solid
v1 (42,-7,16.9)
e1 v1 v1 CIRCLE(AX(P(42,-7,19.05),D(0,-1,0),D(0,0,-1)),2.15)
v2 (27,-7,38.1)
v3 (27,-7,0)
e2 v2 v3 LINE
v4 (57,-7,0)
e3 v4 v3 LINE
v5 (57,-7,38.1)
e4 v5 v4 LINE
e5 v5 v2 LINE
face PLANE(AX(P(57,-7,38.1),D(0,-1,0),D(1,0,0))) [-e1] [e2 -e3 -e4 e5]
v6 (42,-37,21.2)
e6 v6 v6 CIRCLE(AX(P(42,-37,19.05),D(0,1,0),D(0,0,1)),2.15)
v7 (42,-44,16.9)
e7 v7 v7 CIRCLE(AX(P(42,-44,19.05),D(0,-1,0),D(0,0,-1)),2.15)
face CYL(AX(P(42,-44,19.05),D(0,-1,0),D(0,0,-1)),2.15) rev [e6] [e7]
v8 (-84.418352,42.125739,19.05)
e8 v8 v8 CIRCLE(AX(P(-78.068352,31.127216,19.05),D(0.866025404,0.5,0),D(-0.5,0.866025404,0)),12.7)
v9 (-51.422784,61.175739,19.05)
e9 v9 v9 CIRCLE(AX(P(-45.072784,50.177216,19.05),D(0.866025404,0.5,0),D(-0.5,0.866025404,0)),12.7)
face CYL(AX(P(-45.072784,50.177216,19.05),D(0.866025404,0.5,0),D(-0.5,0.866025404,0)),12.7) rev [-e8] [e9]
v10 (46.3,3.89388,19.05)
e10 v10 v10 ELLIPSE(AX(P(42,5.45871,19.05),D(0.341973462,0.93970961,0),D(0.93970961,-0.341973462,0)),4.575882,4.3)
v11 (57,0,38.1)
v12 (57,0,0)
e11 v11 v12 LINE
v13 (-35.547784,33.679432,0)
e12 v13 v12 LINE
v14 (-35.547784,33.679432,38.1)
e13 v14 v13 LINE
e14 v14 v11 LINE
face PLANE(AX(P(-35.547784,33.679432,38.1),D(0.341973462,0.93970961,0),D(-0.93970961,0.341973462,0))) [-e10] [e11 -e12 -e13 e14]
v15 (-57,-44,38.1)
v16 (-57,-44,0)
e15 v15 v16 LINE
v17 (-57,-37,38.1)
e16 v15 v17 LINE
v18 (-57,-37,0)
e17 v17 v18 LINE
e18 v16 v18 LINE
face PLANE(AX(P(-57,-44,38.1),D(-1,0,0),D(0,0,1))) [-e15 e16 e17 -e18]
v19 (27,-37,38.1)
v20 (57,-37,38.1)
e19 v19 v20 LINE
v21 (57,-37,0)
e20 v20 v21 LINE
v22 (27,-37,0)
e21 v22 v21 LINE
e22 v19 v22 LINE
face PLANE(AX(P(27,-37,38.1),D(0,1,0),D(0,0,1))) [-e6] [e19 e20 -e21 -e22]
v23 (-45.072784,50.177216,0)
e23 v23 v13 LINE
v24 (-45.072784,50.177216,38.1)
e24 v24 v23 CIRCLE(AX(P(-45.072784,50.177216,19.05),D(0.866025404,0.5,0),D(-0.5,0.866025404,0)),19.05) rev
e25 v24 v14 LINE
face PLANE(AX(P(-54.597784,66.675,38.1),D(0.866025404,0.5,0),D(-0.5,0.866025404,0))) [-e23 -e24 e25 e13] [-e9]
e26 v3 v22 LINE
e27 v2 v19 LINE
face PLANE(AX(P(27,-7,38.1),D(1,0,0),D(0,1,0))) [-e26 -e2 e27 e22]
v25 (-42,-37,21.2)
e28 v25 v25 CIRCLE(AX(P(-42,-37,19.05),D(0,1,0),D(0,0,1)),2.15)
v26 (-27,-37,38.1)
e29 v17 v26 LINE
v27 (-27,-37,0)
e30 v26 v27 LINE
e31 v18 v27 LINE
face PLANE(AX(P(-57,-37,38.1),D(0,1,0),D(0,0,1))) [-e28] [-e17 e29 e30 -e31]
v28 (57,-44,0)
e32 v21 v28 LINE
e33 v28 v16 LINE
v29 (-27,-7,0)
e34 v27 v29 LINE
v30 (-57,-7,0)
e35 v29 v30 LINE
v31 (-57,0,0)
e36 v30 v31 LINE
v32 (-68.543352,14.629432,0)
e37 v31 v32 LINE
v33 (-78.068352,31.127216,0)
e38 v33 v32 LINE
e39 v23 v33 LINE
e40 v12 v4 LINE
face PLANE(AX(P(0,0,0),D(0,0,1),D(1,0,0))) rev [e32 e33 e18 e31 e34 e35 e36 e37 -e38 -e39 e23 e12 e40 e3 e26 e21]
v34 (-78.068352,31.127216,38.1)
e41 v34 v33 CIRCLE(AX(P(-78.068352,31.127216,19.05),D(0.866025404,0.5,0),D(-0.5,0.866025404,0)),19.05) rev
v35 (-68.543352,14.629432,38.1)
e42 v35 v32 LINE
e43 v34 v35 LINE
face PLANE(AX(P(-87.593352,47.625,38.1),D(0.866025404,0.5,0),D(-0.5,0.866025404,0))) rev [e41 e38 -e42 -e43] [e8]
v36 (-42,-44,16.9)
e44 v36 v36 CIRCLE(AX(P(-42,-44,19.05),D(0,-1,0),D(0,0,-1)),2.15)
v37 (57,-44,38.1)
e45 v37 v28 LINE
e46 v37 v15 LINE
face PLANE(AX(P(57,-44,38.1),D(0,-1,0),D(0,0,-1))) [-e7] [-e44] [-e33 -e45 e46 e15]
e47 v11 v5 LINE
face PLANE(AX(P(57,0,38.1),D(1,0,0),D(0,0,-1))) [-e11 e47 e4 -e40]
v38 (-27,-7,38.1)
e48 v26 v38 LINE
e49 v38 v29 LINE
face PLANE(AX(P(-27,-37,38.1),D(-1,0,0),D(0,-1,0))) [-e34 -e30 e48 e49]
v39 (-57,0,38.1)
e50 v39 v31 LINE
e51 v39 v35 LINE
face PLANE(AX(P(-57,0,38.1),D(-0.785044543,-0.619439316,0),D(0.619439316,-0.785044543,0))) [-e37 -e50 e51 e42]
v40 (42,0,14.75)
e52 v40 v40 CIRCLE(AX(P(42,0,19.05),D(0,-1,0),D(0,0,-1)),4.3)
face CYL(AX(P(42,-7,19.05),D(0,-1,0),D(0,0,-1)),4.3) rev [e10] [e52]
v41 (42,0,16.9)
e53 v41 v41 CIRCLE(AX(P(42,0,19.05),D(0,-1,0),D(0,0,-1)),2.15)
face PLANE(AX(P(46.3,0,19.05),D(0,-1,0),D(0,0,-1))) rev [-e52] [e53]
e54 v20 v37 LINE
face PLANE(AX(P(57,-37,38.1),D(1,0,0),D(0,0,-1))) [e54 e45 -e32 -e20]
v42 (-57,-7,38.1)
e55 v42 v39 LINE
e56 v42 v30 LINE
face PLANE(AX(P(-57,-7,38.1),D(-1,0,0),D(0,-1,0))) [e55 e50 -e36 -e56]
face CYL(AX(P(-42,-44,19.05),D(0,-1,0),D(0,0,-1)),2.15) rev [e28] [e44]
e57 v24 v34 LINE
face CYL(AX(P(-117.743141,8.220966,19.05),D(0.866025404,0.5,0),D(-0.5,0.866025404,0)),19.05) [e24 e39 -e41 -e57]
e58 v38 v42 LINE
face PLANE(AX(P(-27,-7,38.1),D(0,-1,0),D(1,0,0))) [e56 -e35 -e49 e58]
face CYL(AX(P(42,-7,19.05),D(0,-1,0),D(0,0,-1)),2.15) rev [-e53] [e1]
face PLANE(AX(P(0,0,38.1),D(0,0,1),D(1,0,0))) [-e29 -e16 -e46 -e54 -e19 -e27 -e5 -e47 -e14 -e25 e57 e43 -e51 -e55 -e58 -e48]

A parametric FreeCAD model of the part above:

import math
import FreeCAD as App
import Part
import Sketcher

V = App.Vector
Q = App.Units.Quantity


def add_polygon(sketch, points):
    """Adds a closed chain of lines whose ends are joined by coincident constraints."""
    first, n = sketch.GeometryCount, len(points)
    for a, b in zip(points, points[1:] + points[:1]):
        sketch.addGeometry(Part.LineSegment(App.Vector(*a, 0), App.Vector(*b, 0)), False)
    for i in range(n):
        sketch.addConstraint(Sketcher.Constraint("Coincident", first + i, 2, first + (i + 1) % n, 1))

doc = App.newDocument("Part")
body = doc.addObject("PartDesign::Body", "Body")

# Sketch on XY plane
sketch1 = body.newObject("Sketcher::SketchObject", "Sketch")
sketch1.AttachmentSupport = (doc.getObject("XY_Plane"), [""])
sketch1.MapMode = "FlatFace"
add_polygon(sketch1, [(-55, 67), (-88, 48), (-69, 15), (-57, 0), (-57, -7), (-27, -7), (-27, -37), (-57, -37), (-57, -44), (57, -44), (57, -37), (27, -37), (27, -7), (57, -7), (57, 0), (-36, 34)])  # lines 0-15
sketch1.addConstraint([
    Sketcher.Constraint("Vertical", 3),
    Sketcher.Constraint("Horizontal", 4),
    Sketcher.Constraint("Vertical", 5),
    Sketcher.Constraint("Horizontal", 6),
    Sketcher.Constraint("Vertical", 7),
    Sketcher.Constraint("Horizontal", 8),
    Sketcher.Constraint("Vertical", 9),
    Sketcher.Constraint("Horizontal", 10),
    Sketcher.Constraint("Vertical", 11),
    Sketcher.Constraint("Horizontal", 12),
    Sketcher.Constraint("Vertical", 13),
    Sketcher.Constraint("Symmetric", 2, 2, 13, 2, -1, 1),
    Sketcher.Constraint("Symmetric", 6, 2, 9, 2, -2),
    Sketcher.Constraint("Symmetric", 4, 2, 11, 2, -2),
    Sketcher.Constraint("PointOnObject", 2, 2, -1),
    Sketcher.Constraint("Perpendicular", 0, 1),
    Sketcher.Constraint("Parallel", 1, 15),
    Sketcher.Constraint("Vertical", 3, 2, 6, 2),
    Sketcher.Constraint("Equal", 12, 5),
    Sketcher.Constraint("Equal", 3, 7),
    Sketcher.Constraint("Equal", 0, 1),
    Sketcher.Constraint("Equal", 1, 15),
    Sketcher.Constraint("DistanceX", 4, 1, 4, 2, Q("30 mm")),
    Sketcher.Constraint("DistanceX", 8, 1, 8, 2, Q("114 mm")),
    Sketcher.Constraint("DistanceY", 3, 2, 3, 1, Q("7 mm")),
    Sketcher.Constraint("Angle", 0, Q("-150 deg")),
    Sketcher.Constraint("Distance", 0, Q("38.1 mm")),
    Sketcher.Constraint("DistanceY", -1, 1, 0, 2, Q("47.625 mm")),
    Sketcher.Constraint("Distance", 2, Q("18.635162 mm")),
])
pad1 = body.newObject("PartDesign::Pad", "Pad")
pad1.Profile = sketch1
pad1.Length = 38.1

# Sketch on an angled plane
sketch2 = body.newObject("Sketcher::SketchObject", "Sketch001")
sketch2.Placement = App.Placement(V(-12.077216, -6.972784, 0), App.Rotation(V(0, 0, -1), V(-0.5, 0.866025404, 0), V(0.866025404, 0.5, 0), "ZXY"))
sketch2.addGeometry([
    Part.ArcOfCircle(Part.Circle(V(-19, 66, 0), V(0, 0, 1), 19), math.radians(90), math.radians(180)),  # 0
    Part.LineSegment(V(-19, 85, 0), V(-38, 85, 0)),  # 1
    Part.LineSegment(V(-38, 85, 0), V(-38, 66, 0)),  # 2
    Part.LineSegment(V(0, 66, 0), V(0, 85, 0)),  # 3
    Part.LineSegment(V(0, 85, 0), V(-19, 85, 0)),  # 4
    Part.ArcOfCircle(Part.Circle(V(-19, 66, 0), V(0, 0, 1), 19), math.radians(0), math.radians(90)),  # 5
], False)
sketch2.addConstraint([
    Sketcher.Constraint("Tangent", 0, 1, 1, 1),
    Sketcher.Constraint("Coincident", 1, 2, 2, 1),
    Sketcher.Constraint("Tangent", 2, 2, 0, 2),
    Sketcher.Constraint("Coincident", 3, 2, 4, 1),
    Sketcher.Constraint("Tangent", 4, 2, 5, 2),
    Sketcher.Constraint("Tangent", 5, 1, 3, 1),
    Sketcher.Constraint("Horizontal", 1),
    Sketcher.Constraint("Vertical", 2),
    Sketcher.Constraint("Vertical", 3),
    Sketcher.Constraint("Horizontal", 4),
    Sketcher.Constraint("Coincident", 5, 3, 0, 3),
    Sketcher.Constraint("Equal", 0, 5),
    Sketcher.Constraint("PointOnObject", 3, 2, -2),
    Sketcher.Constraint("Radius", 0, Q("19.05 mm")),
    Sketcher.Constraint("DistanceY", -1, 1, 0, 3, Q("65.991136 mm")),
])
pocket1 = body.newObject("PartDesign::Pocket", "Pocket")
pocket1.Profile = sketch2
pocket1.Type = "ThroughAll"

# Sketch on an angled plane
sketch3 = body.newObject("Sketcher::SketchObject", "Sketch002")
sketch3.Placement = App.Placement(V(-12.077216, -6.972784, 0), App.Rotation(V(0, 0, -1), V(-0.5, 0.866025404, 0), V(0.866025404, 0.5, 0), "ZXY"))
sketch3.addGeometry(Part.Circle(V(-19, 66, 0), V(0, 0, 1), 13), False)
sketch3.addConstraint([
    Sketcher.Constraint("Diameter", 0, Q("25.4 mm")),
    Sketcher.Constraint("DistanceX", 0, 3, -1, 1, Q("19.05 mm")),
    Sketcher.Constraint("DistanceY", -1, 1, 0, 3, Q("65.991136 mm")),
])
doc.recompute()
hole = body.newObject("PartDesign::Hole", "Hole")
hole.Profile = sketch3
hole.ThreadType = "None"
hole.Diameter = 25.4
hole.DepthType = "ThroughAll"

# Sketch on XZ plane
sketch4 = body.newObject("Sketcher::SketchObject", "Sketch003")
sketch4.AttachmentSupport = (doc.getObject("XZ_Plane"), [""])
sketch4.MapMode = "FlatFace"
sketch4.AttachmentOffset = App.Placement(V(0, 0, 44), App.Rotation())
sketch4.addGeometry([
    Part.Circle(V(-42, 19.1, 0), V(0, 0, 1), 2.2),
    Part.Circle(V(42, 19.1, 0), V(0, 0, 1), 2.2),
], False)
sketch4.addConstraint([
    Sketcher.Constraint("Equal", 0, 1),
    Sketcher.Constraint("Symmetric", 0, 3, 1, 3, -2),
    Sketcher.Constraint("Diameter", 0, Q("4.3 mm")),
    Sketcher.Constraint("DistanceX", 0, 3, -1, 1, Q("42 mm")),
    Sketcher.Constraint("DistanceY", -1, 1, 0, 3, Q("19.05 mm")),
])
doc.recompute()
hole2 = body.newObject("PartDesign::Hole", "Hole001")
hole2.Profile = sketch4
hole2.ThreadType = "None"
hole2.Diameter = 4.3
hole2.DepthType = "Dimension"
hole2.Depth = 7
hole2.DrillPoint = "Flat"

# Sketch on YZ plane
sketch5 = body.newObject("Sketcher::SketchObject", "Sketch004")
sketch5.AttachmentSupport = (doc.getObject("YZ_Plane"), [""])
sketch5.MapMode = "FlatFace"
sketch5.AttachmentOffset = App.Placement(V(0, 0, 42), App.Rotation())
add_polygon(sketch5, [(66.7, 19.1), (-7, 19.1), (-7, 16.9), (0, 16.9), (0, 14.7), (66.7, 14.7)])  # lines 0-5
sketch5.addGeometry(Part.LineSegment(V(66.7, 19.1, 0), V(-7, 19.1, 0)), True)  # axis
sketch5.addConstraint([
    Sketcher.Constraint("Horizontal", 0),
    Sketcher.Constraint("Vertical", 1),
    Sketcher.Constraint("Horizontal", 2),
    Sketcher.Constraint("Vertical", 3),
    Sketcher.Constraint("Horizontal", 4),
    Sketcher.Constraint("Vertical", 5),
    Sketcher.Constraint("Horizontal", 6),
    Sketcher.Constraint("Coincident", 6, 1, 5, 2),
    Sketcher.Constraint("PointOnObject", 2, 2, -2),
    Sketcher.Constraint("Vertical", 1, 2, 6, 2),
    Sketcher.Constraint("Equal", 1, 3),
    Sketcher.Constraint("DistanceX", 2, 1, 2, 2, Q("7 mm")),
    Sketcher.Constraint("DistanceY", 5, 1, 5, 2, Q("4.3 mm")),
    Sketcher.Constraint("DistanceY", -1, 1, 1, 2, Q("16.9 mm")),
    Sketcher.Constraint("DistanceX", 0, 2, 0, 1, Q("73.675 mm")),
])
groove = body.newObject("PartDesign::Groove", "Groove")
groove.Profile = sketch5
groove.ReferenceAxis = (sketch5, ["Axis0"])
groove.Angle = 360

doc.recompute()
